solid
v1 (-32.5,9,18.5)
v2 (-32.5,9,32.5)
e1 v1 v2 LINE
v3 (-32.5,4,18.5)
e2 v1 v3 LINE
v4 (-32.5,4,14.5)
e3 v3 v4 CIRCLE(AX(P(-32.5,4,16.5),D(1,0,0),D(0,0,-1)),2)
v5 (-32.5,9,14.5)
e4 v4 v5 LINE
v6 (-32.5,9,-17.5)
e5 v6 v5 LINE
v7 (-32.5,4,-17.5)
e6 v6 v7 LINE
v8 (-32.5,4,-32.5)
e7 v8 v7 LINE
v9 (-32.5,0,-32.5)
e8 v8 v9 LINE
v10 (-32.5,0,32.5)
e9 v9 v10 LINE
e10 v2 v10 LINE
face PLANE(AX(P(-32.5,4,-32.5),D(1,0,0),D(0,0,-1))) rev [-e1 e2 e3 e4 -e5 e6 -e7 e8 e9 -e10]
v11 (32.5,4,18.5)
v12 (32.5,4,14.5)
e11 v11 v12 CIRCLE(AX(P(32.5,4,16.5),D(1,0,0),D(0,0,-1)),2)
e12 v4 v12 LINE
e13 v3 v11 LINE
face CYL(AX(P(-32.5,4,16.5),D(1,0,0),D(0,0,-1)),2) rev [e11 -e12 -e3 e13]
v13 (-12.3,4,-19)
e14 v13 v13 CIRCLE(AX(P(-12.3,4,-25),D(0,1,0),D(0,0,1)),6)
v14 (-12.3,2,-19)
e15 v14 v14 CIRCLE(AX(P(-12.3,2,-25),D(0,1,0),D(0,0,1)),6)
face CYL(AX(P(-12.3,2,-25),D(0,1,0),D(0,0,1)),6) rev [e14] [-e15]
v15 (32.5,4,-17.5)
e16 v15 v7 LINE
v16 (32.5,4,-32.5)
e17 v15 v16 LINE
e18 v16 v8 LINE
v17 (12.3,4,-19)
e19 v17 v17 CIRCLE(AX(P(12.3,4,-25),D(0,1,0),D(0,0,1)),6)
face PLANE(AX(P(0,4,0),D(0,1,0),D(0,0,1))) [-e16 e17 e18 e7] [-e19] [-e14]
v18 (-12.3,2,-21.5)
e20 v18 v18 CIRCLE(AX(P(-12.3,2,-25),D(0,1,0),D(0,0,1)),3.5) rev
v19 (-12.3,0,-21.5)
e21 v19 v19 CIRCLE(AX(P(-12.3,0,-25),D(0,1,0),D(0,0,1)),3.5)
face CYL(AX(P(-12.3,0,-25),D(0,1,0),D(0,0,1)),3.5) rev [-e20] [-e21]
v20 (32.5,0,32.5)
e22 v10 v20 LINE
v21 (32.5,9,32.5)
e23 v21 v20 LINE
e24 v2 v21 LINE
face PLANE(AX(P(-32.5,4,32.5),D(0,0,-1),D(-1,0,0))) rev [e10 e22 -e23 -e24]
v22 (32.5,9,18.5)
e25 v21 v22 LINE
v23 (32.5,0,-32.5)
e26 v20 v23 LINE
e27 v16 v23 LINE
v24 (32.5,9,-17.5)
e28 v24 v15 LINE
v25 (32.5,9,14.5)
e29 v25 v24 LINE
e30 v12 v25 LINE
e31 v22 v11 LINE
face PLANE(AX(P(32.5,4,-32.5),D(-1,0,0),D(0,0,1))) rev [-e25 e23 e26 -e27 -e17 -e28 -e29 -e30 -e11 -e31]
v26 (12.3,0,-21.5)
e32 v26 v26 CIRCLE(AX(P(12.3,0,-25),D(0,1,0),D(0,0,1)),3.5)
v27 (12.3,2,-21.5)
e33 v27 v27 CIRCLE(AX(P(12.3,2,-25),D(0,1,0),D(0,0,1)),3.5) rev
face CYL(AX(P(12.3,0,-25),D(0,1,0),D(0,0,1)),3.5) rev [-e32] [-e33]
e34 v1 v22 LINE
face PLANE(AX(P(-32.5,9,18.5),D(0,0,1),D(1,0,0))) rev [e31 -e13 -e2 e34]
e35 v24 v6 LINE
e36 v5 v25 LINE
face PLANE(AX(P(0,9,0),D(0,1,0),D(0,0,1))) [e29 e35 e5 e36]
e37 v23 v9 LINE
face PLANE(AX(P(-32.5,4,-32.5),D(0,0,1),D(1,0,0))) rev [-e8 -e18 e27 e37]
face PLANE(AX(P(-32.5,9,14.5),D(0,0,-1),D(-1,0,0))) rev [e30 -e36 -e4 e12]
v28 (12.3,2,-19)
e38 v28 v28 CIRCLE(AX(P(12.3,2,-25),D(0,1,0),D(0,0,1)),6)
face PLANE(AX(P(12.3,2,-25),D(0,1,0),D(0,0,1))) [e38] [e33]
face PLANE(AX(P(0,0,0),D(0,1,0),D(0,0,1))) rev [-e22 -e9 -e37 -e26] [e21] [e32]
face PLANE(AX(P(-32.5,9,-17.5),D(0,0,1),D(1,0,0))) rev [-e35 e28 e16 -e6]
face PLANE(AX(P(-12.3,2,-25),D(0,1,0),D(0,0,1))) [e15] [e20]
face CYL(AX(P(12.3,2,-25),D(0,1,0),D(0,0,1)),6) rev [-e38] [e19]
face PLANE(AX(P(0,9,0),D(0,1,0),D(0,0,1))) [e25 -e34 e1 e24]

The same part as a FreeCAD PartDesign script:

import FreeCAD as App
import Part
import Sketcher
from FreeCAD import Vector
Q = App.Units.Quantity

doc = App.newDocument("Part")
params = doc.addObject("Spreadsheet::Sheet", "Params")
for row, (alias, value) in enumerate([
    ("sketch1_width", "65 mm"),
    ("pad1_length", "4 mm"),
    ("sketch2_diameter", "7 mm"),
    ("sketch3_diameter", "12 mm"),
    ("pocket2_length", "2 mm"),
    ("sketch4_width", "65 mm"),
    ("sketch4_height", "50 mm"),
    ("pad2_length", "5 mm"),
    ("sketch5_width", "5 mm"),
    ("sketch5_height", "4 mm"),
    ("sketch6_diameter", "4 mm"),
], start=1):
    params.set(f"A{row}", alias)
    params.set(f"B{row}", "=" + value)
    params.setAlias(f"B{row}", alias)

body = doc.addObject("PartDesign::Body", "Body")

# Sketch on XZ plane
sketch1 = body.newObject("Sketcher::SketchObject", "Sketch")
sketch1.AttachmentSupport = (doc.getObject("XZ_Plane"), [""])
sketch1.MapMode = "FlatFace"
sketch1.addGeometry(Part.LineSegment(Vector(-32.5, -32.5, 0), Vector(-32.5, 32.5, 0)), False)
sketch1.addGeometry(Part.LineSegment(Vector(-32.5, 32.5, 0), Vector(32.5, 32.5, 0)), False)
sketch1.addGeometry(Part.LineSegment(Vector(32.5, 32.5, 0), Vector(32.5, -32.5, 0)), False)
sketch1.addGeometry(Part.LineSegment(Vector(32.5, -32.5, 0), Vector(-32.5, -32.5, 0)), False)
sketch1.addConstraint(Sketcher.Constraint("Coincident", 0, 2, 1, 1))
sketch1.addConstraint(Sketcher.Constraint("Coincident", 1, 2, 2, 1))
sketch1.addConstraint(Sketcher.Constraint("Coincident", 2, 2, 3, 1))
sketch1.addConstraint(Sketcher.Constraint("Coincident", 3, 2, 0, 1))
sketch1.addConstraint(Sketcher.Constraint("Vertical", 0))
sketch1.addConstraint(Sketcher.Constraint("Horizontal", 1))
sketch1.addConstraint(Sketcher.Constraint("Vertical", 2))
sketch1.addConstraint(Sketcher.Constraint("Horizontal", 3))
sketch1.addConstraint(Sketcher.Constraint("Symmetric", 0, 2, 2, 2, -1, 1))
sketch1.addConstraint(Sketcher.Constraint("Equal", 3, 0))
sketch1.addConstraint(Sketcher.Constraint("DistanceX", 1, 1, 1, 2, Q("65 mm")))
sketch1.setExpression("Constraints[10]", "Params.sketch1_width")
pad1 = body.newObject("PartDesign::Pad", "Pad")
pad1.Profile = sketch1
pad1.setExpression("Length", "Params.pad1_length")
pad1.Reversed = True

# Sketch on XZ plane
sketch2 = body.newObject("Sketcher::SketchObject", "Sketch001")
sketch2.AttachmentSupport = (doc.getObject("XZ_Plane"), [""])
sketch2.MapMode = "FlatFace"
sketch2.AttachmentOffset = App.Placement(Vector(0, 0, -4), App.Rotation())
sketch2.addGeometry(Part.Circle(Vector(-12.3, -25, 0), Vector(0, 0, 1), 3.5), False)
sketch2.addGeometry(Part.Circle(Vector(12.3, -25, 0), Vector(0, 0, 1), 3.5), False)
sketch2.addConstraint(Sketcher.Constraint("Equal", 0, 1))
sketch2.addConstraint(Sketcher.Constraint("Symmetric", 0, 3, 1, 3, -2))
sketch2.addConstraint(Sketcher.Constraint("Diameter", 0, Q("7 mm")))
sketch2.addConstraint(Sketcher.Constraint("DistanceY", 0, 3, -1, 1, Q("25 mm")))
sketch2.addConstraint(Sketcher.Constraint("DistanceX", 0, 3, -1, 1, Q("12.3 mm")))
sketch2.setExpression("Constraints[2]", "Params.sketch2_diameter")
pocket1 = body.newObject("PartDesign::Pocket", "Pocket")
pocket1.Profile = sketch2
pocket1.Type = "ThroughAll"
pocket1.Reversed = True

# Sketch on XZ plane
sketch3 = body.newObject("Sketcher::SketchObject", "Sketch002")
sketch3.AttachmentSupport = (doc.getObject("XZ_Plane"), [""])
sketch3.MapMode = "FlatFace"
sketch3.AttachmentOffset = App.Placement(Vector(0, 0, -4), App.Rotation())
sketch3.addGeometry(Part.Circle(Vector(-12.3, -25, 0), Vector(0, 0, 1), 6), False)
sketch3.addGeometry(Part.Circle(Vector(12.3, -25, 0), Vector(0, 0, 1), 6), False)
sketch3.addConstraint(Sketcher.Constraint("Equal", 0, 1))
sketch3.addConstraint(Sketcher.Constraint("Symmetric", 0, 3, 1, 3, -2))
sketch3.addConstraint(Sketcher.Constraint("Diameter", 0, Q("12 mm")))
sketch3.addConstraint(Sketcher.Constraint("DistanceY", 0, 3, -1, 1, Q("25 mm")))
sketch3.addConstraint(Sketcher.Constraint("DistanceX", 0, 3, -1, 1, Q("12.3 mm")))
sketch3.setExpression("Constraints[2]", "Params.sketch3_diameter")
pocket2 = body.newObject("PartDesign::Pocket", "Pocket001")
pocket2.Profile = sketch3
pocket2.setExpression("Length", "Params.pocket2_length")
pocket2.Reversed = True

# Sketch on XZ plane
sketch4 = body.newObject("Sketcher::SketchObject", "Sketch003")
sketch4.AttachmentSupport = (doc.getObject("XZ_Plane"), [""])
sketch4.MapMode = "FlatFace"
sketch4.AttachmentOffset = App.Placement(Vector(0, 0, -4), App.Rotation())
sketch4.addGeometry(Part.LineSegment(Vector(-32.5, -17.5, 0), Vector(-32.5, 32.5, 0)), False)
sketch4.addGeometry(Part.LineSegment(Vector(-32.5, 32.5, 0), Vector(32.5, 32.5, 0)), False)
sketch4.addGeometry(Part.LineSegment(Vector(32.5, 32.5, 0), Vector(32.5, -17.5, 0)), False)
sketch4.addGeometry(Part.LineSegment(Vector(32.5, -17.5, 0), Vector(-32.5, -17.5, 0)), False)
sketch4.addConstraint(Sketcher.Constraint("Coincident", 0, 2, 1, 1))
sketch4.addConstraint(Sketcher.Constraint("Coincident", 1, 2, 2, 1))
sketch4.addConstraint(Sketcher.Constraint("Coincident", 2, 2, 3, 1))
sketch4.addConstraint(Sketcher.Constraint("Coincident", 3, 2, 0, 1))
sketch4.addConstraint(Sketcher.Constraint("Vertical", 0))
sketch4.addConstraint(Sketcher.Constraint("Horizontal", 1))
sketch4.addConstraint(Sketcher.Constraint("Vertical", 2))
sketch4.addConstraint(Sketcher.Constraint("Horizontal", 3))
sketch4.addConstraint(Sketcher.Constraint("DistanceX", 1, 1, 1, 2, Q("65 mm")))
sketch4.addConstraint(Sketcher.Constraint("DistanceY", 0, 1, 0, 2, Q("50 mm")))
sketch4.addConstraint(Sketcher.Constraint("DistanceX", 0, 2, -1, 1, Q("32.5 mm")))
sketch4.addConstraint(Sketcher.Constraint("DistanceY", -1, 1, 0, 2, Q("32.5 mm")))
sketch4.setExpression("Constraints[8]", "Params.sketch4_width")
sketch4.setExpression("Constraints[9]", "Params.sketch4_height")
pad2 = body.newObject("PartDesign::Pad", "Pad001")
pad2.Profile = sketch4
pad2.setExpression("Length", "Params.pad2_length")
pad2.Reversed = True

# Sketch on YZ plane
sketch5 = body.newObject("Sketcher::SketchObject", "Sketch004")
sketch5.AttachmentSupport = (doc.getObject("YZ_Plane"), [""])
sketch5.MapMode = "FlatFace"
sketch5.AttachmentOffset = App.Placement(Vector(0, 0, 32.5), App.Rotation())
sketch5.addGeometry(Part.LineSegment(Vector(9, 18.5, 0), Vector(4, 18.5, 0)), False)
sketch5.addGeometry(Part.LineSegment(Vector(4, 18.5, 0), Vector(4, 14.5, 0)), False)
sketch5.addGeometry(Part.LineSegment(Vector(4, 14.5, 0), Vector(9, 14.5, 0)), False)
sketch5.addGeometry(Part.LineSegment(Vector(9, 14.5, 0), Vector(9, 18.5, 0)), False)
sketch5.addConstraint(Sketcher.Constraint("Coincident", 0, 2, 1, 1))
sketch5.addConstraint(Sketcher.Constraint("Coincident", 1, 2, 2, 1))
sketch5.addConstraint(Sketcher.Constraint("Coincident", 2, 2, 3, 1))
sketch5.addConstraint(Sketcher.Constraint("Coincident", 3, 2, 0, 1))
sketch5.addConstraint(Sketcher.Constraint("Horizontal", 0))
sketch5.addConstraint(Sketcher.Constraint("Vertical", 1))
sketch5.addConstraint(Sketcher.Constraint("Horizontal", 2))
sketch5.addConstraint(Sketcher.Constraint("Vertical", 3))
sketch5.addConstraint(Sketcher.Constraint("DistanceX", 0, 2, 0, 1, Q("5 mm")))
sketch5.addConstraint(Sketcher.Constraint("DistanceY", 1, 2, 1, 1, Q("4 mm")))
sketch5.addConstraint(Sketcher.Constraint("DistanceX", -1, 1, 0, 2, Q("4 mm")))
sketch5.addConstraint(Sketcher.Constraint("DistanceY", -1, 1, 0, 2, Q("18.5 mm")))
sketch5.setExpression("Constraints[8]", "Params.sketch5_width")
sketch5.setExpression("Constraints[9]", "Params.sketch5_height")
pocket3 = body.newObject("PartDesign::Pocket", "Pocket002")
pocket3.Profile = sketch5
pocket3.Type = "ThroughAll"

# Sketch on YZ plane
sketch6 = body.newObject("Sketcher::SketchObject", "Sketch005")
sketch6.AttachmentSupport = (doc.getObject("YZ_Plane"), [""])
sketch6.MapMode = "FlatFace"
sketch6.AttachmentOffset = App.Placement(Vector(0, 0, 32.5), App.Rotation())
sketch6.addGeometry(Part.Circle(Vector(4, 16.5, 0), Vector(0, 0, 1), 2), False)
sketch6.addConstraint(Sketcher.Constraint("Diameter", 0, Q("4 mm")))
sketch6.addConstraint(Sketcher.Constraint("DistanceX", -1, 1, 0, 3, Q("4 mm")))
sketch6.addConstraint(Sketcher.Constraint("DistanceY", -1, 1, 0, 3, Q("16.5 mm")))
sketch6.setExpression("Constraints[0]", "Params.sketch6_diameter")
pocket4 = body.newObject("PartDesign::Pocket", "Pocket003")
pocket4.Profile = sketch6
pocket4.Type = "ThroughAll"

doc.recompute()
